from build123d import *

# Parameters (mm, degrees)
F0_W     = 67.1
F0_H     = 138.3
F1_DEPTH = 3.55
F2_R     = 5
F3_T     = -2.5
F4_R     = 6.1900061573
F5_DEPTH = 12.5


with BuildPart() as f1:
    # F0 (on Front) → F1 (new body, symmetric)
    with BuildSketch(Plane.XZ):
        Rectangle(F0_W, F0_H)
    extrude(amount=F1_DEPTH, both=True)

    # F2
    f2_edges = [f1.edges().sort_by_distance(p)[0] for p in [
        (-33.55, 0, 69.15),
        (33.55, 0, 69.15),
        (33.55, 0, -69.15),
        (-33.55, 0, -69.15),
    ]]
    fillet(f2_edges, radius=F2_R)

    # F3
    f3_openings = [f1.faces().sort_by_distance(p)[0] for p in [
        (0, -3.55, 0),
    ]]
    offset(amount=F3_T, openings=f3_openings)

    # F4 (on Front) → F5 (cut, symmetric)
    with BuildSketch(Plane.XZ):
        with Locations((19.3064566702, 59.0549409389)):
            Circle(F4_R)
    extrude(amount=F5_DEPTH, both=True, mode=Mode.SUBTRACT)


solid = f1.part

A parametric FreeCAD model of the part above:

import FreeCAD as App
import Part
import Sketcher
Q = App.Units.Quantity


def edges_at(feature, points):
    """Names of the edges that pass closest to the given points."""
    edges = feature.Shape.Edges
    near = lambda p: min(range(len(edges)), key=lambda i: edges[i].distToShape(Part.Vertex(*p))[0])
    return sorted({f"Edge{near(p) + 1}" for p in points})


def faces_at(feature, points):
    """Names of the faces that lie closest to the given points."""
    faces = feature.Shape.Faces
    near = lambda p: min(range(len(faces)), key=lambda i: faces[i].distToShape(Part.Vertex(*p))[0])
    return sorted({f"Face{near(p) + 1}" for p in points})


def add_polygon(sketch, points):
    """Adds a closed chain of lines whose ends are joined by coincident constraints."""
    first, n = sketch.GeometryCount, len(points)
    for a, b in zip(points, points[1:] + points[:1]):
        sketch.addGeometry(Part.LineSegment(App.Vector(*a, 0), App.Vector(*b, 0)), False)
    for i in range(n):
        sketch.addConstraint(Sketcher.Constraint("Coincident", first + i, 2, first + (i + 1) % n, 1))

doc = App.newDocument("Part")
params = doc.addObject("Spreadsheet::Sheet", "Params")
for row, (alias, value) in enumerate([
    ("sketch1_width", "67.1 mm"),
    ("sketch1_height", "138.3 mm"),
    ("pad1_length", "7.1 mm"),
    ("fillet_radius", "5 mm"),
    ("thickness_wall", "2.5 mm"),
    ("pocket1_length", "25 mm"),
], start=1):
    params.set(f"A{row}", alias)
    params.set(f"B{row}", "=" + value)
    params.setAlias(f"B{row}", alias)

body = doc.addObject("PartDesign::Body", "Body")

sketch1 = doc.addObject("Sketcher::SketchObject", "Sketch")
body.addObject(sketch1)
sketch1.AttachmentSupport = (doc.XZ_Plane, [""])
sketch1.MapMode = "FlatFace"
add_polygon(sketch1, [(-33.55, 69.15), (-33.55, -69.15), (33.55, -69.15), (33.55, 69.15)])
sketch1.addConstraint([
    Sketcher.Constraint("Vertical", 0),
    Sketcher.Constraint("Horizontal", 1),
    Sketcher.Constraint("Vertical", 2),
    Sketcher.Constraint("Horizontal", 3),
    Sketcher.Constraint("Symmetric", 0, 2, 2, 2, -1, 1),
    Sketcher.Constraint("DistanceX", 1, 1, 1, 2, Q("67.1 mm")),
    Sketcher.Constraint("DistanceY", 0, 2, 0, 1, Q("138.3 mm")),
])
sketch1.setExpression("Constraints[9]", "Params.sketch1_width")
sketch1.setExpression("Constraints[10]", "Params.sketch1_height")
pad1 = doc.addObject("PartDesign::Pad", "Pad")
body.addObject(pad1)
pad1.Profile = sketch1
pad1.setExpression("Length", "Params.pad1_length")
pad1.Midplane = True
doc.recompute()

fillet = doc.addObject("PartDesign::Fillet", "Fillet")
body.addObject(fillet)
fillet.Base = (pad1, edges_at(pad1, [
    (-33.55, 0, 69.15),
    (33.55, 0, 69.15),
    (33.55, 0, -69.15),
    (-33.55, 0, -69.15),
]))
fillet.setExpression("Radius", "Params.fillet_radius")
doc.recompute()

thickness = doc.addObject("PartDesign::Thickness", "Thickness")
body.addObject(thickness)
thickness.Base = (fillet, faces_at(fillet, [(0, -3.55, 0)]))
thickness.setExpression("Value", "Params.thickness_wall")
thickness.Reversed = True
thickness.Join = "Arc"

sketch2 = doc.addObject("Sketcher::SketchObject", "Sketch001")
body.addObject(sketch2)
sketch2.AttachmentSupport = (doc.XZ_Plane, [""])
sketch2.MapMode = "FlatFace"
sketch2.addGeometry(Part.Circle(App.Vector(19.306457, 59.054941, 0), App.Vector(0, 0, 1), 6.190006), False)
sketch2.addConstraint([
    Sketcher.Constraint("Diameter", 0, Q("12.380012 mm")),
    Sketcher.Constraint("DistanceY", -1, 1, 0, 3, Q("59.054941 mm")),
    Sketcher.Constraint("DistanceX", -1, 1, 0, 3, Q("19.306457 mm")),
])
pocket1 = doc.addObject("PartDesign::Pocket", "Pocket")
body.addObject(pocket1)
pocket1.Profile = sketch2
pocket1.setExpression("Length", "Params.pocket1_length")
pocket1.Midplane = True

doc.recompute()
